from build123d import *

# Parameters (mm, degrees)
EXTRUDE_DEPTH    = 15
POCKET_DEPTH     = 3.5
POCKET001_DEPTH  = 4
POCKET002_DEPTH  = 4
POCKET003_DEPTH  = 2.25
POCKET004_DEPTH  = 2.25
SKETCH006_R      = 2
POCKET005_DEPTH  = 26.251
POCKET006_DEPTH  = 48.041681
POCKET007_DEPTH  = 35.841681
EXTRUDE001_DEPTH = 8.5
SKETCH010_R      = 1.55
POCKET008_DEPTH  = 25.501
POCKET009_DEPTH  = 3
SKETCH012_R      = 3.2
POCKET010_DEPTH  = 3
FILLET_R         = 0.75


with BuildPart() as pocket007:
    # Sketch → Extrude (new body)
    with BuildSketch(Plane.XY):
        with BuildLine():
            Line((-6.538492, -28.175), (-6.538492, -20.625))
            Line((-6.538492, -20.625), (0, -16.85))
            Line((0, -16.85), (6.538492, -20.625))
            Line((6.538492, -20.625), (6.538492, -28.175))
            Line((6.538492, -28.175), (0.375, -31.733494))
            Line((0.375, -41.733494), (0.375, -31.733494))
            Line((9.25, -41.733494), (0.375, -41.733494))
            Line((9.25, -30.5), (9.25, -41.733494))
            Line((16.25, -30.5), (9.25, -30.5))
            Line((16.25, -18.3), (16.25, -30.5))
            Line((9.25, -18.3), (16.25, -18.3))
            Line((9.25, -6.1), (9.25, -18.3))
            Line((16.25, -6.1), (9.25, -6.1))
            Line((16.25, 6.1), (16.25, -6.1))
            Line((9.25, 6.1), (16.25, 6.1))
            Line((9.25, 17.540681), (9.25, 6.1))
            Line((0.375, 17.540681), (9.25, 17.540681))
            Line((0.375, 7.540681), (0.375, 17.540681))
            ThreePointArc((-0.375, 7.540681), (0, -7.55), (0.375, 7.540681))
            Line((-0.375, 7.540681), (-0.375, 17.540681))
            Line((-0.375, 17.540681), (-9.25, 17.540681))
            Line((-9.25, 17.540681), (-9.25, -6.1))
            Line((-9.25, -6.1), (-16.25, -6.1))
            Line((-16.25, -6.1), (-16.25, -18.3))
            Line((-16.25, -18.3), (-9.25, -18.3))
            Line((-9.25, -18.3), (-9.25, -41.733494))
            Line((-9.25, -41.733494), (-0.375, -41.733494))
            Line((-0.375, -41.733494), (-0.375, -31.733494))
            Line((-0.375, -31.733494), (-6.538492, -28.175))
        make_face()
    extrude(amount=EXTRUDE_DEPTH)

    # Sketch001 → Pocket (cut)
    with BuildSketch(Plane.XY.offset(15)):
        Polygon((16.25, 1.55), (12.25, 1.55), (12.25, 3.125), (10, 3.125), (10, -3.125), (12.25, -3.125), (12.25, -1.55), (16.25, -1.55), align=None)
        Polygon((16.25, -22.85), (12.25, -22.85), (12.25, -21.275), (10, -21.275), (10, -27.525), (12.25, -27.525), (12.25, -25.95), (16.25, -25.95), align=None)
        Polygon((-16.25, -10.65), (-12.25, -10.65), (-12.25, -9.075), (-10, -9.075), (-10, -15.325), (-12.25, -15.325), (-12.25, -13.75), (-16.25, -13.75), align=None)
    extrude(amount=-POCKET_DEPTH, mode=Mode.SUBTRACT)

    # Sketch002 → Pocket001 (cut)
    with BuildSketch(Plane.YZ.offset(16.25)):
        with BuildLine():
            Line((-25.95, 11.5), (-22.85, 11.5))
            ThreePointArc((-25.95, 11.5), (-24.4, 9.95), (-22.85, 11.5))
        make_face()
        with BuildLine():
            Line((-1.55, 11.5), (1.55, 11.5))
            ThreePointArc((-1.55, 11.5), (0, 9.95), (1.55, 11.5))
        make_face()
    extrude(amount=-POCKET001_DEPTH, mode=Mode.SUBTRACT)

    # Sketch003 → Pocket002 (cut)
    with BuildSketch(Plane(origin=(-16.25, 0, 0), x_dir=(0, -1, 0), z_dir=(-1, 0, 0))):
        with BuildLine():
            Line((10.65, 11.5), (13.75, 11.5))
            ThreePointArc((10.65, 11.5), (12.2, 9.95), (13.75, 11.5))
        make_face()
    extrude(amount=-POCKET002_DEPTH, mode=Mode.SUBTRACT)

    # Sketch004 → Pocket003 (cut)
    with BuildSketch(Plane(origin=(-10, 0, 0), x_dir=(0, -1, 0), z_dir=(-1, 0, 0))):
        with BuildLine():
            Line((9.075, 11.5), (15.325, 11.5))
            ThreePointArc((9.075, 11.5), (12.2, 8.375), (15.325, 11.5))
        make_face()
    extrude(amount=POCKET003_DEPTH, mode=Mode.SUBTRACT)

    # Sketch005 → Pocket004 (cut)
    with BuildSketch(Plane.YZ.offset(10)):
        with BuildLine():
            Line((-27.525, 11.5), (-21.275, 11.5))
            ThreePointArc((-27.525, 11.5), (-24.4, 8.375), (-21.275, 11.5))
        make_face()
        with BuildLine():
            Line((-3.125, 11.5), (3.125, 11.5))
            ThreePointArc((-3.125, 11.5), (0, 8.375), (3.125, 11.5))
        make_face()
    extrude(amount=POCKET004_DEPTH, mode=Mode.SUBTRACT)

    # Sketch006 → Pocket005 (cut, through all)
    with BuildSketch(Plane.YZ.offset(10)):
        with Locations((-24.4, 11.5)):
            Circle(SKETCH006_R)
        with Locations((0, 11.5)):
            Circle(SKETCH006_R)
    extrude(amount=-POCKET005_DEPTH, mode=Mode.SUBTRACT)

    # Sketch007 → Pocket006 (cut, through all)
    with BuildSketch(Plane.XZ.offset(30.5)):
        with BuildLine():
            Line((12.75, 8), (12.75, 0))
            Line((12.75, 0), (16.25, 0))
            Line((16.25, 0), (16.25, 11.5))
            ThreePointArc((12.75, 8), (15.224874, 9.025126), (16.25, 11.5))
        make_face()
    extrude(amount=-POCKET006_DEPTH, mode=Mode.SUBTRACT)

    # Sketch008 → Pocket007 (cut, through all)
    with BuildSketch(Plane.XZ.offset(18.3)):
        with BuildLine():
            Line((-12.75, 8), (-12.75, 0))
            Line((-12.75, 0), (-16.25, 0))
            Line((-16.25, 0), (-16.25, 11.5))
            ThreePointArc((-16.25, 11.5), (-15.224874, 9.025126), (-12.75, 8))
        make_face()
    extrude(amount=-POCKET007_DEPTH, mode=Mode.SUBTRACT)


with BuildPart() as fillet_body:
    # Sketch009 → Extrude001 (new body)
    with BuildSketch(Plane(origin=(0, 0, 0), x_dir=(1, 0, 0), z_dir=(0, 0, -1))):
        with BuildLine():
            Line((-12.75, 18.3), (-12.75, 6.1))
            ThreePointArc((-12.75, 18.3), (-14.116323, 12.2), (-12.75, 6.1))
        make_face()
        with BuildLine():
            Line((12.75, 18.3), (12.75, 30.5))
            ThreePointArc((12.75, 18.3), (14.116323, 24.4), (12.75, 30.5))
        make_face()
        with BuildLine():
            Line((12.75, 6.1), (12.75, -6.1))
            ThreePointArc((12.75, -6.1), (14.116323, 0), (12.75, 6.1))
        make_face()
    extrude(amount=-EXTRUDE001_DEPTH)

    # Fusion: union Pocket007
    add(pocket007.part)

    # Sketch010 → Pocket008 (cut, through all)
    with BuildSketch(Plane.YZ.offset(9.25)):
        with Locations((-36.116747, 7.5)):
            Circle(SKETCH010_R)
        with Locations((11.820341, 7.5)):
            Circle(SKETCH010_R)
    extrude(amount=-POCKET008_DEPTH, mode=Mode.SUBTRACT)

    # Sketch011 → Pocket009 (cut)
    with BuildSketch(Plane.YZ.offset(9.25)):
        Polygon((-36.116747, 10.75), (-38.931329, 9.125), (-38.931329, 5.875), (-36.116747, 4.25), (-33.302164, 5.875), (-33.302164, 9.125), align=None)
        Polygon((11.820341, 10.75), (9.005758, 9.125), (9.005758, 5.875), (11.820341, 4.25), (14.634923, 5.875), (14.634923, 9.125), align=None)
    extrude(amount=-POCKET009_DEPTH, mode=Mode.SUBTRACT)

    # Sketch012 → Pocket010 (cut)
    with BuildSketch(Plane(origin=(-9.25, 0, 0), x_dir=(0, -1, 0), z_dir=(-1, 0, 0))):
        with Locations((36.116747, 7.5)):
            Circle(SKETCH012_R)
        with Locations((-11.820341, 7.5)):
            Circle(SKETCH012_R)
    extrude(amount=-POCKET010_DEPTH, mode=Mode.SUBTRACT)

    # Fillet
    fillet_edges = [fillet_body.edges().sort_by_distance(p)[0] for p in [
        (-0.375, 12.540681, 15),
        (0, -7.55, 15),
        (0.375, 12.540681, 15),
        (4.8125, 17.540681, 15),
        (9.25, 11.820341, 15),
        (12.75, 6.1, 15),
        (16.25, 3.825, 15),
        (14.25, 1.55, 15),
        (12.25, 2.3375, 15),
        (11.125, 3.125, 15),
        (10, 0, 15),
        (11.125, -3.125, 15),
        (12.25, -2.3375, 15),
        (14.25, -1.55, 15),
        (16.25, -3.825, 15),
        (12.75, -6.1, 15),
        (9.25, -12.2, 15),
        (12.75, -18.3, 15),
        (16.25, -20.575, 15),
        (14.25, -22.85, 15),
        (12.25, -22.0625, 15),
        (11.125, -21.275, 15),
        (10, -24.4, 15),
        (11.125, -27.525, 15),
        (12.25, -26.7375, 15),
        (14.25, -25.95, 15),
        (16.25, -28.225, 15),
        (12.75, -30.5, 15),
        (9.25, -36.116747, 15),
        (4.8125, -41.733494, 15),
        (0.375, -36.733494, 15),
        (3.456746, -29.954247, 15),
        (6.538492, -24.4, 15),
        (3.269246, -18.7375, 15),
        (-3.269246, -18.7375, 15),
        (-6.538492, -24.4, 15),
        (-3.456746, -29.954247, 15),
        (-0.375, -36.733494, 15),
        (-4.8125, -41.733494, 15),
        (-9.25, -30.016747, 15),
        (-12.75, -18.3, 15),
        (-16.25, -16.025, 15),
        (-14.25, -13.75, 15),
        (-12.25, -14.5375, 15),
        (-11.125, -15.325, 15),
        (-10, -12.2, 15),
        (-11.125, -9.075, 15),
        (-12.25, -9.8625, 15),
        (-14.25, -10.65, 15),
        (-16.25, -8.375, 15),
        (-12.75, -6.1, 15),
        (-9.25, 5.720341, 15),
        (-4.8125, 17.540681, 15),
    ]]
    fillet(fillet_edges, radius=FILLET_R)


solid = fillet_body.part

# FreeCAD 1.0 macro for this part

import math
import FreeCAD as App
import Part
import Sketcher

V = App.Vector
Q = App.Units.Quantity


def edges_at(feature, points):
    """Names of the edges that pass closest to the given points."""
    edges = feature.Shape.Edges
    near = lambda p: min(range(len(edges)), key=lambda i: edges[i].distToShape(Part.Vertex(*p))[0])
    return sorted({f"Edge{near(p) + 1}" for p in points})


def add_polygon(sketch, points):
    """Adds a closed chain of lines whose ends are joined by coincident constraints."""
    first, n = sketch.GeometryCount, len(points)
    for a, b in zip(points, points[1:] + points[:1]):
        sketch.addGeometry(Part.LineSegment(App.Vector(*a, 0), App.Vector(*b, 0)), False)
    for i in range(n):
        sketch.addConstraint(Sketcher.Constraint("Coincident", first + i, 2, first + (i + 1) % n, 1))

doc = App.newDocument("Part")
body = doc.addObject("PartDesign::Body", "Body")

# Sketch on XY plane
sketch1 = doc.addObject("Sketcher::SketchObject", "Sketch")
body.addObject(sketch1)
sketch1.AttachmentSupport = (doc.XY_Plane, [""])
sketch1.MapMode = "FlatFace"
sketch1.addGeometry([
    Part.LineSegment(V(-6.5, -28.2, 0), V(-6.5, -20.6, 0)),  # 0
    Part.LineSegment(V(-6.5, -20.6, 0), V(0, -16.9, 0)),  # 1
    Part.LineSegment(V(0, -16.9, 0), V(6.5, -20.6, 0)),  # 2
    Part.LineSegment(V(6.5, -20.6, 0), V(6.5, -28.2, 0)),  # 3
    Part.LineSegment(V(6.5, -28.2, 0), V(0.4, -31.7, 0)),  # 4
    Part.LineSegment(V(0.4, -31.7, 0), V(0.4, -41.7, 0)),  # 5
    Part.LineSegment(V(0.4, -41.7, 0), V(9.2, -41.7, 0)),  # 6
    Part.LineSegment(V(9.2, -41.7, 0), V(9.2, -30.5, 0)),  # 7
    Part.LineSegment(V(9.2, -30.5, 0), V(16.2, -30.5, 0)),  # 8
    Part.LineSegment(V(16.2, -30.5, 0), V(16.2, -18.3, 0)),  # 9
    Part.LineSegment(V(16.2, -18.3, 0), V(9.2, -18.3, 0)),  # 10
    Part.LineSegment(V(9.2, -18.3, 0), V(9.2, -6.1, 0)),  # 11
    Part.LineSegment(V(9.2, -6.1, 0), V(16.2, -6.1, 0)),  # 12
    Part.LineSegment(V(16.2, -6.1, 0), V(16.2, 6.1, 0)),  # 13
    Part.LineSegment(V(16.2, 6.1, 0), V(9.2, 6.1, 0)),  # 14
    Part.LineSegment(V(9.2, 6.1, 0), V(9.2, 17.5, 0)),  # 15
    Part.LineSegment(V(9.2, 17.5, 0), V(0.4, 17.5, 0)),  # 16
    Part.LineSegment(V(0.4, 17.5, 0), V(0.4, 7.5, 0)),  # 17
    Part.ArcOfCircle(Part.Circle(V(0, 0, 0), V(0, 0, 1), 7.5), math.radians(93), math.radians(447)),  # 18
    Part.LineSegment(V(-0.4, 7.5, 0), V(-0.4, 17.5, 0)),  # 19
    Part.LineSegment(V(-0.4, 17.5, 0), V(-9.2, 17.5, 0)),  # 20
    Part.LineSegment(V(-9.2, 17.5, 0), V(-9.2, -6.1, 0)),  # 21
    Part.LineSegment(V(-9.2, -6.1, 0), V(-16.2, -6.1, 0)),  # 22
    Part.LineSegment(V(-16.2, -6.1, 0), V(-16.2, -18.3, 0)),  # 23
    Part.LineSegment(V(-16.2, -18.3, 0), V(-9.2, -18.3, 0)),  # 24
    Part.LineSegment(V(-9.2, -18.3, 0), V(-9.2, -41.7, 0)),  # 25
    Part.LineSegment(V(-9.2, -41.7, 0), V(-0.4, -41.7, 0)),  # 26
    Part.LineSegment(V(-0.4, -41.7, 0), V(-0.4, -31.7, 0)),  # 27
    Part.LineSegment(V(-0.4, -31.7, 0), V(-6.5, -28.2, 0)),  # 28
], False)
sketch1.addConstraint([
    Sketcher.Constraint("Coincident", 0, 2, 1, 1),
    Sketcher.Constraint("Coincident", 1, 2, 2, 1),
    Sketcher.Constraint("Coincident", 2, 2, 3, 1),
    Sketcher.Constraint("Coincident", 3, 2, 4, 1),
    Sketcher.Constraint("Coincident", 4, 2, 5, 1),
    Sketcher.Constraint("Coincident", 5, 2, 6, 1),
    Sketcher.Constraint("Coincident", 6, 2, 7, 1),
    Sketcher.Constraint("Coincident", 7, 2, 8, 1),
    Sketcher.Constraint("Coincident", 8, 2, 9, 1),
    Sketcher.Constraint("Coincident", 9, 2, 10, 1),
    Sketcher.Constraint("Coincident", 10, 2, 11, 1),
    Sketcher.Constraint("Coincident", 11, 2, 12, 1),
    Sketcher.Constraint("Coincident", 12, 2, 13, 1),
    Sketcher.Constraint("Coincident", 13, 2, 14, 1),
    Sketcher.Constraint("Coincident", 14, 2, 15, 1),
    Sketcher.Constraint("Coincident", 15, 2, 16, 1),
    Sketcher.Constraint("Coincident", 16, 2, 17, 1),
    Sketcher.Constraint("Coincident", 17, 2, 18, 2),
    Sketcher.Constraint("Coincident", 18, 1, 19, 1),
    Sketcher.Constraint("Coincident", 19, 2, 20, 1),
    Sketcher.Constraint("Coincident", 20, 2, 21, 1),
    Sketcher.Constraint("Coincident", 21, 2, 22, 1),
    Sketcher.Constraint("Coincident", 22, 2, 23, 1),
    Sketcher.Constraint("Coincident", 23, 2, 24, 1),
    Sketcher.Constraint("Coincident", 24, 2, 25, 1),
    Sketcher.Constraint("Coincident", 25, 2, 26, 1),
    Sketcher.Constraint("Coincident", 26, 2, 27, 1),
    Sketcher.Constraint("Coincident", 27, 2, 28, 1),
    Sketcher.Constraint("Coincident", 28, 2, 0, 1),
    Sketcher.Constraint("Vertical", 0),
    Sketcher.Constraint("Vertical", 3),
    Sketcher.Constraint("Vertical", 5),
    Sketcher.Constraint("Horizontal", 6),
    Sketcher.Constraint("Vertical", 7),
    Sketcher.Constraint("Horizontal", 8),
    Sketcher.Constraint("Vertical", 9),
    Sketcher.Constraint("Horizontal", 10),
    Sketcher.Constraint("Vertical", 11),
    Sketcher.Constraint("Horizontal", 12),
    Sketcher.Constraint("Vertical", 13),
    Sketcher.Constraint("Horizontal", 14),
    Sketcher.Constraint("Vertical", 15),
    Sketcher.Constraint("Horizontal", 16),
    Sketcher.Constraint("Vertical", 17),
    Sketcher.Constraint("Vertical", 19),
    Sketcher.Constraint("Horizontal", 20),
    Sketcher.Constraint("Vertical", 21),
    Sketcher.Constraint("Horizontal", 22),
    Sketcher.Constraint("Vertical", 23),
    Sketcher.Constraint("Horizontal", 24),
    Sketcher.Constraint("Vertical", 25),
    Sketcher.Constraint("Horizontal", 26),
    Sketcher.Constraint("Vertical", 27),
    Sketcher.Constraint("Coincident", 18, 3, -1, 1),
    Sketcher.Constraint("Symmetric", 14, 2, 21, 2, -1, 1),
    Sketcher.Constraint("Symmetric", 0, 2, 2, 2, -2),
    Sketcher.Constraint("Symmetric", 16, 2, 19, 2, -2),
    Sketcher.Constraint("Symmetric", 11, 2, 21, 2, -2),
    Sketcher.Constraint("Symmetric", 9, 2, 23, 2, -2),
    Sketcher.Constraint("Symmetric", 6, 2, 25, 2, -2),
    Sketcher.Constraint("Symmetric", 4, 2, 27, 2, -2),
    Sketcher.Constraint("PointOnObject", 1, 2, -2),
    Sketcher.Constraint("Parallel", 1, 4),
    Sketcher.Constraint("Parallel", 2, 28),
    Sketcher.Constraint("Vertical", 7, 2, 10, 2),
    Sketcher.Constraint("Vertical", 9, 2, 12, 2),
    Sketcher.Constraint("Vertical", 5, 2, 16, 2),
    Sketcher.Constraint("Equal", 9, 11),
    Sketcher.Constraint("Equal", 11, 13),
    Sketcher.Constraint("Equal", 5, 17),
    Sketcher.Constraint("DistanceX", 8, 1, 8, 2, 7.0),
    Sketcher.Constraint("DistanceY", 5, 2, 5, 1, 10.0),
    Sketcher.Constraint("Angle", 1, Q("29.999999 deg")),
    Sketcher.Constraint("Radius", 18, 7.55),
    Sketcher.Constraint("DistanceY", 9, 1, 9, 2, 12.2),
    Sketcher.Constraint("DistanceY", 0, 1, 0, 2, 7.55),
    Sketcher.Constraint("DistanceX", 20, 2, 15, 2, 18.5),
    Sketcher.Constraint("Distance", 1, 7.55),
    Sketcher.Constraint("DistanceX", 6, 1, 6, 2, 8.875),
    Sketcher.Constraint("DistanceY", 1, 2, -1, 1, 16.85),
])
pad1 = doc.addObject("PartDesign::Pad", "Pad")
body.addObject(pad1)
pad1.Profile = sketch1
pad1.Length = 15

# Sketch on XY plane
sketch2 = doc.addObject("Sketcher::SketchObject", "Sketch001")
body.addObject(sketch2)
sketch2.AttachmentSupport = (doc.XY_Plane, [""])
sketch2.MapMode = "FlatFace"
sketch2.AttachmentOffset = App.Placement(V(0, 0, 15), App.Rotation())
add_polygon(sketch2, [(16.2, 1.6), (12.2, 1.6), (12.2, 3.1), (10, 3.1), (10, -3.1), (12.2, -3.1), (12.2, -1.6), (16.2, -1.6)])  # lines 0-7
add_polygon(sketch2, [(16.2, -22.9), (12.2, -22.9), (12.2, -21.3), (10, -21.3), (10, -27.5), (12.2, -27.5), (12.2, -25.9), (16.2, -25.9)])  # lines 8-15
add_polygon(sketch2, [(-12.2, -10.7), (-16.2, -10.7), (-16.2, -13.8), (-12.2, -13.8), (-12.2, -15.3), (-10, -15.3), (-10, -9.1), (-12.2, -9.1)])  # lines 16-23
sketch2.addConstraint([
    Sketcher.Constraint("Horizontal", 0),
    Sketcher.Constraint("Vertical", 1),
    Sketcher.Constraint("Horizontal", 2),
    Sketcher.Constraint("Vertical", 3),
    Sketcher.Constraint("Horizontal", 4),
    Sketcher.Constraint("Vertical", 5),
    Sketcher.Constraint("Horizontal", 6),
    Sketcher.Constraint("Vertical", 7),
    Sketcher.Constraint("Horizontal", 8),
    Sketcher.Constraint("Vertical", 9),
    Sketcher.Constraint("Horizontal", 10),
    Sketcher.Constraint("Vertical", 11),
    Sketcher.Constraint("Horizontal", 12),
    Sketcher.Constraint("Vertical", 13),
    Sketcher.Constraint("Horizontal", 14),
    Sketcher.Constraint("Vertical", 15),
    Sketcher.Constraint("Horizontal", 16),
    Sketcher.Constraint("Vertical", 17),
    Sketcher.Constraint("Horizontal", 18),
    Sketcher.Constraint("Vertical", 19),
    Sketcher.Constraint("Horizontal", 20),
    Sketcher.Constraint("Vertical", 21),
    Sketcher.Constraint("Horizontal", 22),
    Sketcher.Constraint("Vertical", 23),
    Sketcher.Constraint("Symmetric", 1, 2, 4, 2, -1),
    Sketcher.Constraint("Vertical", 5, 2, 8, 2),
    Sketcher.Constraint("Vertical", 3, 2, 10, 2),
    Sketcher.Constraint("Vertical", 9, 2, 12, 2),
    Sketcher.Constraint("Vertical", 7, 2, 14, 2),
    Sketcher.Constraint("Vertical", 19, 2, 22, 2),
    Sketcher.Constraint("Equal", 14, 16),
    Sketcher.Constraint("Equal", 12, 20),
    Sketcher.Constraint("Equal", 1, 5),
    Sketcher.Constraint("Equal", 5, 9),
    Sketcher.Constraint("Equal", 3, 11),
    Sketcher.Constraint("Equal", 9, 13),
    Sketcher.Constraint("Equal", 15, 17),
    Sketcher.Constraint("Equal", 13, 19),
    Sketcher.Constraint("Equal", 11, 21),
    Sketcher.Constraint("DistanceX", 0, 2, 0, 1, 4.0),
    Sketcher.Constraint("DistanceY", 7, 1, 7, 2, 3.1),
    Sketcher.Constraint("DistanceX", -1, 1, 2, 2, 10.0),
    Sketcher.Constraint("DistanceX", 20, 2, -1, 1, 10.0),
    Sketcher.Constraint("DistanceX", 2, 2, 2, 1, 2.25),
    Sketcher.Constraint("DistanceY", 3, 2, 3, 1, 6.25),
    Sketcher.Constraint("DistanceY", 8, 2, 5, 2, 21.3),
    Sketcher.Constraint("DistanceY", 16, 2, 5, 2, 9.1),
])
pocket1 = doc.addObject("PartDesign::Pocket", "Pocket")
body.addObject(pocket1)
pocket1.Profile = sketch2
pocket1.Length = 3.5

# Sketch on YZ plane
sketch3 = doc.addObject("Sketcher::SketchObject", "Sketch002")
body.addObject(sketch3)
sketch3.AttachmentSupport = (doc.YZ_Plane, [""])
sketch3.MapMode = "FlatFace"
sketch3.AttachmentOffset = App.Placement(V(0, 0, 16.25), App.Rotation())
sketch3.addGeometry([
    Part.LineSegment(V(-22.9, 11.5, 0), V(-25.9, 11.5, 0)),
    Part.ArcOfCircle(Part.Circle(V(-24.4, 11.5, 0), V(0, 0, 1), 1.6), math.radians(180), math.radians(360)),
    Part.LineSegment(V(1.6, 11.5, 0), V(-1.6, 11.5, 0)),
    Part.ArcOfCircle(Part.Circle(V(0, 11.5, 0), V(0, 0, 1), 1.6), math.radians(180), math.radians(360)),
], False)
sketch3.addConstraint([
    Sketcher.Constraint("Coincident", 0, 1, 1, 2),
    Sketcher.Constraint("Coincident", 1, 1, 0, 2),
    Sketcher.Constraint("Coincident", 2, 1, 3, 2),
    Sketcher.Constraint("Coincident", 3, 1, 2, 2),
    Sketcher.Constraint("Horizontal", 0),
    Sketcher.Constraint("Horizontal", 2),
    Sketcher.Constraint("Equal", 1, 3),
    Sketcher.Constraint("PointOnObject", 3, 3, -2),
    Sketcher.Constraint("Horizontal", 1, 3, 3, 3),
    Sketcher.Constraint("Horizontal", 3, 3, 0, 1),
    Sketcher.Constraint("Horizontal", 1, 1, 2, 1),
    Sketcher.Constraint("Radius", 1, 1.55),
    Sketcher.Constraint("DistanceX", 1, 3, -1, 1, 24.4),
    Sketcher.Constraint("DistanceY", -1, 1, 1, 3, 11.5),
])
pocket2 = doc.addObject("PartDesign::Pocket", "Pocket001")
body.addObject(pocket2)
pocket2.Profile = sketch3
pocket2.Length = 4

# Sketch on YZ plane
sketch4 = doc.addObject("Sketcher::SketchObject", "Sketch003")
body.addObject(sketch4)
sketch4.AttachmentSupport = (doc.YZ_Plane, [""])
sketch4.MapMode = "FlatFace"
sketch4.AttachmentOffset = App.Placement(V(0, 0, -16.25), App.Rotation())
sketch4.addGeometry([
    Part.LineSegment(V(-13.8, 11.5, 0), V(-10.7, 11.5, 0)),
    Part.ArcOfCircle(Part.Circle(V(-12.2, 11.5, 0), V(0, 0, 1), 1.6), math.radians(180), math.radians(360)),
], False)
sketch4.addConstraint([
    Sketcher.Constraint("Coincident", 0, 1, 1, 1),
    Sketcher.Constraint("Coincident", 1, 2, 0, 2),
    Sketcher.Constraint("Horizontal", 0),
    Sketcher.Constraint("Horizontal", 1, 3, 0, 1),
    Sketcher.Constraint("Radius", 1, 1.55),
    Sketcher.Constraint("DistanceX", 1, 3, -1, 1, 12.2),
    Sketcher.Constraint("DistanceY", -1, 1, 1, 3, 11.5),
])
pocket3 = doc.addObject("PartDesign::Pocket", "Pocket002")
body.addObject(pocket3)
pocket3.Profile = sketch4
pocket3.Length = 4
pocket3.Reversed = True

# Sketch on YZ plane
sketch5 = doc.addObject("Sketcher::SketchObject", "Sketch004")
body.addObject(sketch5)
sketch5.AttachmentSupport = (doc.YZ_Plane, [""])
sketch5.MapMode = "FlatFace"
sketch5.AttachmentOffset = App.Placement(V(0, 0, -10), App.Rotation())
sketch5.addGeometry([
    Part.LineSegment(V(-15.3, 11.5, 0), V(-9.1, 11.5, 0)),
    Part.ArcOfCircle(Part.Circle(V(-12.2, 11.5, 0), V(0, 0, 1), 3.1), math.radians(180), math.radians(360)),
], False)
sketch5.addConstraint([
    Sketcher.Constraint("Coincident", 0, 1, 1, 1),
    Sketcher.Constraint("Coincident", 1, 2, 0, 2),
    Sketcher.Constraint("Horizontal", 0),
    Sketcher.Constraint("Horizontal", 1, 3, 0, 1),
    Sketcher.Constraint("Radius", 1, 3.125),
    Sketcher.Constraint("DistanceX", 1, 3, -1, 1, 12.2),
    Sketcher.Constraint("DistanceY", -1, 1, 1, 3, 11.5),
])
pocket4 = doc.addObject("PartDesign::Pocket", "Pocket003")
body.addObject(pocket4)
pocket4.Profile = sketch5
pocket4.Length = 2.25

# Sketch on YZ plane
sketch6 = doc.addObject("Sketcher::SketchObject", "Sketch005")
body.addObject(sketch6)
sketch6.AttachmentSupport = (doc.YZ_Plane, [""])
sketch6.MapMode = "FlatFace"
sketch6.AttachmentOffset = App.Placement(V(0, 0, 10), App.Rotation())
sketch6.addGeometry([
    Part.LineSegment(V(-21.3, 11.5, 0), V(-27.5, 11.5, 0)),
    Part.ArcOfCircle(Part.Circle(V(-24.4, 11.5, 0), V(0, 0, 1), 3.1), math.radians(180), math.radians(360)),
    Part.LineSegment(V(3.1, 11.5, 0), V(-3.1, 11.5, 0)),
    Part.ArcOfCircle(Part.Circle(V(0, 11.5, 0), V(0, 0, 1), 3.1), math.radians(180), math.radians(360)),
], False)
sketch6.addConstraint([
    Sketcher.Constraint("Coincident", 0, 1, 1, 2),
    Sketcher.Constraint("Coincident", 1, 1, 0, 2),
    Sketcher.Constraint("Coincident", 2, 1, 3, 2),
    Sketcher.Constraint("Coincident", 3, 1, 2, 2),
    Sketcher.Constraint("Horizontal", 0),
    Sketcher.Constraint("Horizontal", 2),
    Sketcher.Constraint("Equal", 1, 3),
    Sketcher.Constraint("PointOnObject", 3, 3, -2),
    Sketcher.Constraint("Horizontal", 1, 3, 3, 3),
    Sketcher.Constraint("Horizontal", 3, 3, 0, 1),
    Sketcher.Constraint("Horizontal", 1, 1, 2, 1),
    Sketcher.Constraint("Radius", 1, 3.125),
    Sketcher.Constraint("DistanceX", 1, 3, -1, 1, 24.4),
    Sketcher.Constraint("DistanceY", -1, 1, 1, 3, 11.5),
])
pocket5 = doc.addObject("PartDesign::Pocket", "Pocket004")
body.addObject(pocket5)
pocket5.Profile = sketch6
pocket5.Length = 2.25
pocket5.Reversed = True

# Sketch on YZ plane
sketch7 = doc.addObject("Sketcher::SketchObject", "Sketch006")
body.addObject(sketch7)
sketch7.AttachmentSupport = (doc.YZ_Plane, [""])
sketch7.MapMode = "FlatFace"
sketch7.AttachmentOffset = App.Placement(V(0, 0, 10), App.Rotation())
sketch7.addGeometry([
    Part.Circle(V(-24.4, 11.5, 0), V(0, 0, 1), 2),
    Part.Circle(V(0, 11.5, 0), V(0, 0, 1), 2),
], False)
sketch7.addConstraint([
    Sketcher.Constraint("Equal", 0, 1),
    Sketcher.Constraint("PointOnObject", 1, 3, -2),
    Sketcher.Constraint("Horizontal", 0, 3, 1, 3),
    Sketcher.Constraint("Diameter", 0, 4.0),
    Sketcher.Constraint("DistanceX", 0, 3, -1, 1, 24.4),
    Sketcher.Constraint("DistanceY", -1, 1, 0, 3, 11.5),
])
pocket6 = doc.addObject("PartDesign::Pocket", "Pocket005")
body.addObject(pocket6)
pocket6.Profile = sketch7
pocket6.Type = "ThroughAll"

# Sketch on XZ plane
sketch8 = doc.addObject("Sketcher::SketchObject", "Sketch007")
body.addObject(sketch8)
sketch8.AttachmentSupport = (doc.XZ_Plane, [""])
sketch8.MapMode = "FlatFace"
sketch8.AttachmentOffset = App.Placement(V(0, 0, 30.5), App.Rotation())
sketch8.addGeometry([
    Part.LineSegment(V(12.8, 8, 0), V(12.8, 0, 0)),
    Part.LineSegment(V(12.8, 0, 0), V(16.2, 0, 0)),
    Part.LineSegment(V(16.2, 0, 0), V(16.2, 11.5, 0)),
    Part.ArcOfCircle(Part.Circle(V(12.8, 11.5, 0), V(0, 0, 1), 3.5), math.radians(-90), math.radians(0)),
], False)
sketch8.addConstraint([
    Sketcher.Constraint("Coincident", 0, 2, 1, 1),
    Sketcher.Constraint("Coincident", 1, 2, 2, 1),
    Sketcher.Constraint("Tangent", 2, 2, 3, 2),
    Sketcher.Constraint("Coincident", 3, 1, 0, 1),
    Sketcher.Constraint("Vertical", 0),
    Sketcher.Constraint("Horizontal", 1),
    Sketcher.Constraint("Vertical", 2),
    Sketcher.Constraint("PointOnObject", 0, 2, -1),
    Sketcher.Constraint("Vertical", 3, 3, 0, 2),
    Sketcher.Constraint("Radius", 3, 3.499999),
    Sketcher.Constraint("DistanceY", 0, 2, 0, 1, 8.0),
    Sketcher.Constraint("DistanceX", -1, 1, 3, 3, 12.750001),
])
pocket7 = doc.addObject("PartDesign::Pocket", "Pocket006")
body.addObject(pocket7)
pocket7.Profile = sketch8
pocket7.Type = "ThroughAll"

# Sketch on XZ plane
sketch9 = doc.addObject("Sketcher::SketchObject", "Sketch008")
body.addObject(sketch9)
sketch9.AttachmentSupport = (doc.XZ_Plane, [""])
sketch9.MapMode = "FlatFace"
sketch9.AttachmentOffset = App.Placement(V(0, 0, 18.3), App.Rotation())
sketch9.addGeometry([
    Part.LineSegment(V(-12.8, 0, 0), V(-12.8, 8, 0)),
    Part.ArcOfCircle(Part.Circle(V(-12.8, 11.5, 0), V(0, 0, 1), 3.5), math.radians(180), math.radians(270)),
    Part.LineSegment(V(-16.2, 11.5, 0), V(-16.2, 0, 0)),
    Part.LineSegment(V(-16.2, 0, 0), V(-12.8, 0, 0)),
], False)
sketch9.addConstraint([
    Sketcher.Constraint("Coincident", 0, 2, 1, 2),
    Sketcher.Constraint("Tangent", 1, 1, 2, 1),
    Sketcher.Constraint("Coincident", 2, 2, 3, 1),
    Sketcher.Constraint("Coincident", 3, 2, 0, 1),
    Sketcher.Constraint("Vertical", 0),
    Sketcher.Constraint("Vertical", 2),
    Sketcher.Constraint("Horizontal", 3),
    Sketcher.Constraint("PointOnObject", 2, 2, -1),
    Sketcher.Constraint("Vertical", 1, 3, 0, 2),
    Sketcher.Constraint("Radius", 1, 3.499999),
    Sketcher.Constraint("DistanceY", 0, 1, 0, 2, 8.0),
    Sketcher.Constraint("DistanceX", 1, 3, -1, 1, 12.750001),
])
pocket8 = doc.addObject("PartDesign::Pocket", "Pocket007")
body.addObject(pocket8)
pocket8.Profile = sketch9
pocket8.Type = "ThroughAll"
body2 = doc.addObject("PartDesign::Body", "Body001")
body2.AllowCompound = True

# Sketch on XY plane
sketch10 = doc.addObject("Sketcher::SketchObject", "Sketch009")
body2.addObject(sketch10)
sketch10.AttachmentSupport = (doc.getObject("XY_Plane001"), [""])
sketch10.MapMode = "FlatFace"
sketch10.addGeometry([
    Part.LineSegment(V(-13, -6, 0), V(-13, -18, 0)),  # 0
    Part.ArcOfCircle(Part.Circle(V(0, -12, 0), V(0, 0, 1), 14), math.radians(155), math.radians(205)),  # 1
    Part.LineSegment(V(13, -30, 0), V(13, -18, 0)),  # 2
    Part.ArcOfCircle(Part.Circle(V(0, -24, 0), V(0, 0, 1), 14), math.radians(-25), math.radians(25)),  # 3
    Part.LineSegment(V(13, -6, 0), V(13, 6, 0)),  # 4
    Part.ArcOfCircle(Part.Circle(V(0, 0, 0), V(0, 0, 1), 14), math.radians(-25), math.radians(25)),  # 5
], False)
sketch10.addConstraint([
    Sketcher.Constraint("Coincident", 0, 1, 1, 1),
    Sketcher.Constraint("Coincident", 1, 2, 0, 2),
    Sketcher.Constraint("Coincident", 2, 1, 3, 1),
    Sketcher.Constraint("Coincident", 3, 2, 2, 2),
    Sketcher.Constraint("Coincident", 4, 1, 5, 1),
    Sketcher.Constraint("Coincident", 5, 2, 4, 2),
    Sketcher.Constraint("Vertical", 0),
    Sketcher.Constraint("Vertical", 2),
    Sketcher.Constraint("Vertical", 4),
    Sketcher.Constraint("Equal", 1, 3),
    Sketcher.Constraint("Equal", 3, 5),
    Sketcher.Constraint("Symmetric", 0, 1, 5, 2, -1, 1),
    Sketcher.Constraint("Symmetric", 1, 2, 3, 2, -2),
    Sketcher.Constraint("PointOnObject", 5, 3, -1),
    Sketcher.Constraint("Vertical", 3, 3, 5, 3),
    Sketcher.Constraint("Equal", 0, 2),
    Sketcher.Constraint("Radius", 1, 14.3),
    Sketcher.Constraint("DistanceY", 0, 2, 0, 1, 12.2),
    Sketcher.Constraint("DistanceX", 1, 2, 2, 1, 25.5),
])
pad2 = doc.addObject("PartDesign::Pad", "Pad001")
body2.addObject(pad2)
pad2.Profile = sketch10
pad2.Length = 8.5
doc.recompute()

boolean = doc.addObject("PartDesign::Boolean", "Boolean")
body2.addObject(boolean)
boolean.Type = "Fuse"
boolean.addObjects([body])

# Sketch on YZ plane
sketch11 = doc.addObject("Sketcher::SketchObject", "Sketch010")
body2.addObject(sketch11)
sketch11.AttachmentSupport = (doc.getObject("YZ_Plane001"), [""])
sketch11.MapMode = "FlatFace"
sketch11.AttachmentOffset = App.Placement(V(0, 0, 9.25), App.Rotation())
sketch11.addGeometry([
    Part.Circle(V(-36.1, 7.5, 0), V(0, 0, 1), 1.6),
    Part.Circle(V(11.8, 7.5, 0), V(0, 0, 1), 1.6),
], False)
sketch11.addConstraint([
    Sketcher.Constraint("Equal", 0, 1),
    Sketcher.Constraint("Horizontal", 0, 3, 1, 3),
    Sketcher.Constraint("Diameter", 0, 3.1),
    Sketcher.Constraint("DistanceY", -1, 1, 0, 3, 7.5),
    Sketcher.Constraint("DistanceX", -1, 1, 1, 3, 11.820341),
    Sketcher.Constraint("DistanceX", 0, 3, -1, 1, 36.116747),
])
pocket9 = doc.addObject("PartDesign::Pocket", "Pocket008")
body2.addObject(pocket9)
pocket9.Profile = sketch11
pocket9.Type = "ThroughAll"

# Sketch on YZ plane
sketch12 = doc.addObject("Sketcher::SketchObject", "Sketch011")
body2.addObject(sketch12)
sketch12.AttachmentSupport = (doc.getObject("YZ_Plane001"), [""])
sketch12.MapMode = "FlatFace"
sketch12.AttachmentOffset = App.Placement(V(0, 0, 9.25), App.Rotation())
add_polygon(sketch12, [(-36.1, 10.8), (-38.9, 9.1), (-38.9, 5.9), (-36.1, 4.2), (-33.3, 5.9), (-33.3, 9.1)])  # lines 0-5
add_polygon(sketch12, [(11.8, 10.8), (9, 9.1), (9, 5.9), (11.8, 4.2), (14.6, 5.9), (14.6, 9.1)])  # lines 6-11
sketch12.addConstraint([
    Sketcher.Constraint("Vertical", 1),
    Sketcher.Constraint("Vertical", 4),
    Sketcher.Constraint("Vertical", 7),
    Sketcher.Constraint("Vertical", 10),
    Sketcher.Constraint("Parallel", 0, 3),
    Sketcher.Constraint("Parallel", 2, 5),
    Sketcher.Constraint("Parallel", 3, 6),
    Sketcher.Constraint("Parallel", 5, 8),
    Sketcher.Constraint("Parallel", 6, 9),
    Sketcher.Constraint("Parallel", 8, 11),
    Sketcher.Constraint("Horizontal", 1, 2, 3, 2),
    Sketcher.Constraint("Horizontal", 0, 2, 4, 2),
    Sketcher.Constraint("Horizontal", 4, 2, 6, 2),
    Sketcher.Constraint("Horizontal", 3, 2, 7, 2),
    Sketcher.Constraint("Horizontal", 2, 2, 8, 2),
    Sketcher.Constraint("Horizontal", 7, 2, 9, 2),
    Sketcher.Constraint("Horizontal", 6, 2, 10, 2),
    Sketcher.Constraint("Vertical", 2, 2, 5, 2),
    Sketcher.Constraint("Angle", 0, Q("-149.999995 deg")),
    Sketcher.Constraint("DistanceY", 1, 2, 1, 1, 3.25),
    Sketcher.Constraint("DistanceY", 2, 2, 5, 2, 6.5),
    Sketcher.Constraint("DistanceY", -1, 1, 2, 2, 4.25),
    Sketcher.Constraint("DistanceX", 0, 2, -1, 1, 38.931329),
    Sketcher.Constraint("DistanceX", -1, 1, 8, 2, 11.820341),
])
pocket10 = doc.addObject("PartDesign::Pocket", "Pocket009")
body2.addObject(pocket10)
pocket10.Profile = sketch12
pocket10.Length = 3

# Sketch on YZ plane
sketch13 = doc.addObject("Sketcher::SketchObject", "Sketch012")
body2.addObject(sketch13)
sketch13.AttachmentSupport = (doc.getObject("YZ_Plane001"), [""])
sketch13.MapMode = "FlatFace"
sketch13.AttachmentOffset = App.Placement(V(0, 0, -9.25), App.Rotation())
sketch13.addGeometry([
    Part.Circle(V(-36.1, 7.5, 0), V(0, 0, 1), 3.2),
    Part.Circle(V(11.8, 7.5, 0), V(0, 0, 1), 3.2),
], False)
sketch13.addConstraint([
    Sketcher.Constraint("Equal", 0, 1),
    Sketcher.Constraint("Horizontal", 0, 3, 1, 3),
    Sketcher.Constraint("Diameter", 0, 6.4),
    Sketcher.Constraint("DistanceY", -1, 1, 0, 3, 7.5),
    Sketcher.Constraint("DistanceX", -1, 1, 1, 3, 11.820341),
    Sketcher.Constraint("DistanceX", 0, 3, -1, 1, 36.116747),
])
pocket11 = doc.addObject("PartDesign::Pocket", "Pocket010")
body2.addObject(pocket11)
pocket11.Profile = sketch13
pocket11.Length = 3
pocket11.Reversed = True
doc.recompute()

fillet = doc.addObject("PartDesign::Fillet", "Fillet")
body2.addObject(fillet)
fillet.Base = (pocket11, edges_at(pocket11, [
    (-0.375, 12.541, 15),
    (0, -7.55, 15),
    (0.375, 12.541, 15),
    (4.812, 17.541, 15),
    (9.25, 11.82, 15),
    (12.75, 6.1, 15),
    (16.25, 3.825, 15),
    (14.25, 1.55, 15),
    (12.25, 2.337, 15),
    (11.125, 3.125, 15),
    (10, 0, 15),
    (11.125, -3.125, 15),
    (12.25, -2.337, 15),
    (14.25, -1.55, 15),
    (16.25, -3.825, 15),
    (12.75, -6.1, 15),
    (9.25, -12.2, 15),
    (12.75, -18.3, 15),
    (16.25, -20.575, 15),
    (14.25, -22.85, 15),
    (12.25, -22.062, 15),
    (11.125, -21.275, 15),
    (10, -24.4, 15),
    (11.125, -27.525, 15),
    (12.25, -26.738, 15),
    (14.25, -25.95, 15),
    (16.25, -28.225, 15),
    (12.75, -30.5, 15),
    (9.25, -36.117, 15),
    (4.812, -41.733, 15),
    (0.375, -36.733, 15),
    (3.457, -29.954, 15),
    (6.538, -24.4, 15),
    (3.269, -18.738, 15),
    (-3.269, -18.738, 15),
    (-6.538, -24.4, 15),
    (-3.457, -29.954, 15),
    (-0.375, -36.733, 15),
    (-4.812, -41.733, 15),
    (-9.25, -30.017, 15),
    (-12.75, -18.3, 15),
    (-16.25, -16.025, 15),
    (-14.25, -13.75, 15),
    (-12.25, -14.537, 15),
    (-11.125, -15.325, 15),
    (-10, -12.2, 15),
    (-11.125, -9.075, 15),
    (-12.25, -9.863, 15),
    (-14.25, -10.65, 15),
    (-16.25, -8.375, 15),
    (-12.75, -6.1, 15),
    (-9.25, 5.72, 15),
    (-4.812, 17.541, 15),
]))
fillet.Radius = 0.75

doc.recompute()
